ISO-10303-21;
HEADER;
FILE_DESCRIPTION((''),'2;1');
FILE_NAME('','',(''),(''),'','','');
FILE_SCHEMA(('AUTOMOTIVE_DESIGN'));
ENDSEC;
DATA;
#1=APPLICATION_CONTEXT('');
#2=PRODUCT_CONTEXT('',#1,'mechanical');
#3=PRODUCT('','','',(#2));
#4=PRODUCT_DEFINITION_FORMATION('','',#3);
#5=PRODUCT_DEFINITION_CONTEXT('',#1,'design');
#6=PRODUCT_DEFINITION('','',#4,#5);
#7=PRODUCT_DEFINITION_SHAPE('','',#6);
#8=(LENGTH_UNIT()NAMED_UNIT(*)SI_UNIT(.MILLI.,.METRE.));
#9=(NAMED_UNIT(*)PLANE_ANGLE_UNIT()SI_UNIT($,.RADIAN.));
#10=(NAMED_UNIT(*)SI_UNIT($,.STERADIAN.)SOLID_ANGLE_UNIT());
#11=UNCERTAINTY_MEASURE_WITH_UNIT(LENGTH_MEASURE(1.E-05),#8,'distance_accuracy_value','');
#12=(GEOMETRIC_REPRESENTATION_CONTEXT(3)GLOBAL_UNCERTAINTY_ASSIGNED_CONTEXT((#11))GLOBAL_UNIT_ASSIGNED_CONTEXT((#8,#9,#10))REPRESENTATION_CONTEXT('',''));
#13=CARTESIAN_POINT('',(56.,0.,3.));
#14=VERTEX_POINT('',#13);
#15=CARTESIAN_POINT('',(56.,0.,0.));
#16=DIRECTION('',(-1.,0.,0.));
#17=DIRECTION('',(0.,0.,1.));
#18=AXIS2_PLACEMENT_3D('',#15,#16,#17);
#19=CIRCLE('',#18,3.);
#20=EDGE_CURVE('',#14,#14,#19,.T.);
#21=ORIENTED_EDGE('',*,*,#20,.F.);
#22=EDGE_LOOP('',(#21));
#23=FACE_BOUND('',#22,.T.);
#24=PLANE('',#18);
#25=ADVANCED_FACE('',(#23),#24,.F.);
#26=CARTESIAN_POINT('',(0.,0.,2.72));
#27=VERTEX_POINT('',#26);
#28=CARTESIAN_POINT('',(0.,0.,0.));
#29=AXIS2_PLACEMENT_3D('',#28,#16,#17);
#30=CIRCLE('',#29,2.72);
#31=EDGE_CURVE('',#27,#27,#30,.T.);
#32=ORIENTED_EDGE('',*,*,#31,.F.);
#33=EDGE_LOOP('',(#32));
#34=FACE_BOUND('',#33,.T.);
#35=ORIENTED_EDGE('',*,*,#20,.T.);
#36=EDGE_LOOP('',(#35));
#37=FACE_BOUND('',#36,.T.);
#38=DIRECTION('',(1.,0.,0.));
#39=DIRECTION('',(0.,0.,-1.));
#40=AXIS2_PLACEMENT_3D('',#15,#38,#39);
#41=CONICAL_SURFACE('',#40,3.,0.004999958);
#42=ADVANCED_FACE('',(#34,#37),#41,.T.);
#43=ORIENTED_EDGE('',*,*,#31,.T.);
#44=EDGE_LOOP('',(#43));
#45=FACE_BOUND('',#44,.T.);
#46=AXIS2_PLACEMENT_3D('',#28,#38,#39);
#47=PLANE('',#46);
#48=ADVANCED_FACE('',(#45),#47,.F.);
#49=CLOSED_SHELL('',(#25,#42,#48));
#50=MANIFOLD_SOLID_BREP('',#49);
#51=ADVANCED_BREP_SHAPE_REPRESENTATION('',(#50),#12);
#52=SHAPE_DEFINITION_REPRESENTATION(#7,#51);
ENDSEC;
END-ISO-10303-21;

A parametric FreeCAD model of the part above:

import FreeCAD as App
import Part
import Sketcher

V = App.Vector


def add_polygon(sketch, points):
    """Adds a closed chain of lines whose ends are joined by coincident constraints."""
    first, n = sketch.GeometryCount, len(points)
    for a, b in zip(points, points[1:] + points[:1]):
        sketch.addGeometry(Part.LineSegment(App.Vector(*a, 0), App.Vector(*b, 0)), False)
    for i in range(n):
        sketch.addConstraint(Sketcher.Constraint("Coincident", first + i, 2, first + (i + 1) % n, 1))

doc = App.newDocument("Part")
body = doc.addObject("PartDesign::Body", "Body")

# Sketch on XY plane
sketch1 = body.newObject("Sketcher::SketchObject", "Sketch")
sketch1.AttachmentSupport = (doc.getObject("XY_Plane"), [""])
sketch1.MapMode = "FlatFace"
add_polygon(sketch1, [(0, 0), (56, 0), (56, 3), (0, 2.72)])  # lines 0-3
sketch1.addConstraint(Sketcher.Constraint("Horizontal", 0))
sketch1.addConstraint(Sketcher.Constraint("Vertical", 1))
sketch1.addConstraint(Sketcher.Constraint("Vertical", 3))
sketch1.addConstraint(Sketcher.Constraint("Coincident", 3, 2, -1, 1))
sketch1.addConstraint(Sketcher.Constraint("DistanceX", 0, 1, 0, 2, 56.0))
sketch1.addConstraint(Sketcher.Constraint("DistanceY", 1, 1, 1, 2, 3.0))
sketch1.addConstraint(Sketcher.Constraint("DistanceY", 3, 2, 3, 1, 2.72))
revolution = body.newObject("PartDesign::Revolution", "Revolution")
revolution.Profile = sketch1
revolution.ReferenceAxis = (sketch1, ["H_Axis"])
revolution.Angle = 360

doc.recompute()
